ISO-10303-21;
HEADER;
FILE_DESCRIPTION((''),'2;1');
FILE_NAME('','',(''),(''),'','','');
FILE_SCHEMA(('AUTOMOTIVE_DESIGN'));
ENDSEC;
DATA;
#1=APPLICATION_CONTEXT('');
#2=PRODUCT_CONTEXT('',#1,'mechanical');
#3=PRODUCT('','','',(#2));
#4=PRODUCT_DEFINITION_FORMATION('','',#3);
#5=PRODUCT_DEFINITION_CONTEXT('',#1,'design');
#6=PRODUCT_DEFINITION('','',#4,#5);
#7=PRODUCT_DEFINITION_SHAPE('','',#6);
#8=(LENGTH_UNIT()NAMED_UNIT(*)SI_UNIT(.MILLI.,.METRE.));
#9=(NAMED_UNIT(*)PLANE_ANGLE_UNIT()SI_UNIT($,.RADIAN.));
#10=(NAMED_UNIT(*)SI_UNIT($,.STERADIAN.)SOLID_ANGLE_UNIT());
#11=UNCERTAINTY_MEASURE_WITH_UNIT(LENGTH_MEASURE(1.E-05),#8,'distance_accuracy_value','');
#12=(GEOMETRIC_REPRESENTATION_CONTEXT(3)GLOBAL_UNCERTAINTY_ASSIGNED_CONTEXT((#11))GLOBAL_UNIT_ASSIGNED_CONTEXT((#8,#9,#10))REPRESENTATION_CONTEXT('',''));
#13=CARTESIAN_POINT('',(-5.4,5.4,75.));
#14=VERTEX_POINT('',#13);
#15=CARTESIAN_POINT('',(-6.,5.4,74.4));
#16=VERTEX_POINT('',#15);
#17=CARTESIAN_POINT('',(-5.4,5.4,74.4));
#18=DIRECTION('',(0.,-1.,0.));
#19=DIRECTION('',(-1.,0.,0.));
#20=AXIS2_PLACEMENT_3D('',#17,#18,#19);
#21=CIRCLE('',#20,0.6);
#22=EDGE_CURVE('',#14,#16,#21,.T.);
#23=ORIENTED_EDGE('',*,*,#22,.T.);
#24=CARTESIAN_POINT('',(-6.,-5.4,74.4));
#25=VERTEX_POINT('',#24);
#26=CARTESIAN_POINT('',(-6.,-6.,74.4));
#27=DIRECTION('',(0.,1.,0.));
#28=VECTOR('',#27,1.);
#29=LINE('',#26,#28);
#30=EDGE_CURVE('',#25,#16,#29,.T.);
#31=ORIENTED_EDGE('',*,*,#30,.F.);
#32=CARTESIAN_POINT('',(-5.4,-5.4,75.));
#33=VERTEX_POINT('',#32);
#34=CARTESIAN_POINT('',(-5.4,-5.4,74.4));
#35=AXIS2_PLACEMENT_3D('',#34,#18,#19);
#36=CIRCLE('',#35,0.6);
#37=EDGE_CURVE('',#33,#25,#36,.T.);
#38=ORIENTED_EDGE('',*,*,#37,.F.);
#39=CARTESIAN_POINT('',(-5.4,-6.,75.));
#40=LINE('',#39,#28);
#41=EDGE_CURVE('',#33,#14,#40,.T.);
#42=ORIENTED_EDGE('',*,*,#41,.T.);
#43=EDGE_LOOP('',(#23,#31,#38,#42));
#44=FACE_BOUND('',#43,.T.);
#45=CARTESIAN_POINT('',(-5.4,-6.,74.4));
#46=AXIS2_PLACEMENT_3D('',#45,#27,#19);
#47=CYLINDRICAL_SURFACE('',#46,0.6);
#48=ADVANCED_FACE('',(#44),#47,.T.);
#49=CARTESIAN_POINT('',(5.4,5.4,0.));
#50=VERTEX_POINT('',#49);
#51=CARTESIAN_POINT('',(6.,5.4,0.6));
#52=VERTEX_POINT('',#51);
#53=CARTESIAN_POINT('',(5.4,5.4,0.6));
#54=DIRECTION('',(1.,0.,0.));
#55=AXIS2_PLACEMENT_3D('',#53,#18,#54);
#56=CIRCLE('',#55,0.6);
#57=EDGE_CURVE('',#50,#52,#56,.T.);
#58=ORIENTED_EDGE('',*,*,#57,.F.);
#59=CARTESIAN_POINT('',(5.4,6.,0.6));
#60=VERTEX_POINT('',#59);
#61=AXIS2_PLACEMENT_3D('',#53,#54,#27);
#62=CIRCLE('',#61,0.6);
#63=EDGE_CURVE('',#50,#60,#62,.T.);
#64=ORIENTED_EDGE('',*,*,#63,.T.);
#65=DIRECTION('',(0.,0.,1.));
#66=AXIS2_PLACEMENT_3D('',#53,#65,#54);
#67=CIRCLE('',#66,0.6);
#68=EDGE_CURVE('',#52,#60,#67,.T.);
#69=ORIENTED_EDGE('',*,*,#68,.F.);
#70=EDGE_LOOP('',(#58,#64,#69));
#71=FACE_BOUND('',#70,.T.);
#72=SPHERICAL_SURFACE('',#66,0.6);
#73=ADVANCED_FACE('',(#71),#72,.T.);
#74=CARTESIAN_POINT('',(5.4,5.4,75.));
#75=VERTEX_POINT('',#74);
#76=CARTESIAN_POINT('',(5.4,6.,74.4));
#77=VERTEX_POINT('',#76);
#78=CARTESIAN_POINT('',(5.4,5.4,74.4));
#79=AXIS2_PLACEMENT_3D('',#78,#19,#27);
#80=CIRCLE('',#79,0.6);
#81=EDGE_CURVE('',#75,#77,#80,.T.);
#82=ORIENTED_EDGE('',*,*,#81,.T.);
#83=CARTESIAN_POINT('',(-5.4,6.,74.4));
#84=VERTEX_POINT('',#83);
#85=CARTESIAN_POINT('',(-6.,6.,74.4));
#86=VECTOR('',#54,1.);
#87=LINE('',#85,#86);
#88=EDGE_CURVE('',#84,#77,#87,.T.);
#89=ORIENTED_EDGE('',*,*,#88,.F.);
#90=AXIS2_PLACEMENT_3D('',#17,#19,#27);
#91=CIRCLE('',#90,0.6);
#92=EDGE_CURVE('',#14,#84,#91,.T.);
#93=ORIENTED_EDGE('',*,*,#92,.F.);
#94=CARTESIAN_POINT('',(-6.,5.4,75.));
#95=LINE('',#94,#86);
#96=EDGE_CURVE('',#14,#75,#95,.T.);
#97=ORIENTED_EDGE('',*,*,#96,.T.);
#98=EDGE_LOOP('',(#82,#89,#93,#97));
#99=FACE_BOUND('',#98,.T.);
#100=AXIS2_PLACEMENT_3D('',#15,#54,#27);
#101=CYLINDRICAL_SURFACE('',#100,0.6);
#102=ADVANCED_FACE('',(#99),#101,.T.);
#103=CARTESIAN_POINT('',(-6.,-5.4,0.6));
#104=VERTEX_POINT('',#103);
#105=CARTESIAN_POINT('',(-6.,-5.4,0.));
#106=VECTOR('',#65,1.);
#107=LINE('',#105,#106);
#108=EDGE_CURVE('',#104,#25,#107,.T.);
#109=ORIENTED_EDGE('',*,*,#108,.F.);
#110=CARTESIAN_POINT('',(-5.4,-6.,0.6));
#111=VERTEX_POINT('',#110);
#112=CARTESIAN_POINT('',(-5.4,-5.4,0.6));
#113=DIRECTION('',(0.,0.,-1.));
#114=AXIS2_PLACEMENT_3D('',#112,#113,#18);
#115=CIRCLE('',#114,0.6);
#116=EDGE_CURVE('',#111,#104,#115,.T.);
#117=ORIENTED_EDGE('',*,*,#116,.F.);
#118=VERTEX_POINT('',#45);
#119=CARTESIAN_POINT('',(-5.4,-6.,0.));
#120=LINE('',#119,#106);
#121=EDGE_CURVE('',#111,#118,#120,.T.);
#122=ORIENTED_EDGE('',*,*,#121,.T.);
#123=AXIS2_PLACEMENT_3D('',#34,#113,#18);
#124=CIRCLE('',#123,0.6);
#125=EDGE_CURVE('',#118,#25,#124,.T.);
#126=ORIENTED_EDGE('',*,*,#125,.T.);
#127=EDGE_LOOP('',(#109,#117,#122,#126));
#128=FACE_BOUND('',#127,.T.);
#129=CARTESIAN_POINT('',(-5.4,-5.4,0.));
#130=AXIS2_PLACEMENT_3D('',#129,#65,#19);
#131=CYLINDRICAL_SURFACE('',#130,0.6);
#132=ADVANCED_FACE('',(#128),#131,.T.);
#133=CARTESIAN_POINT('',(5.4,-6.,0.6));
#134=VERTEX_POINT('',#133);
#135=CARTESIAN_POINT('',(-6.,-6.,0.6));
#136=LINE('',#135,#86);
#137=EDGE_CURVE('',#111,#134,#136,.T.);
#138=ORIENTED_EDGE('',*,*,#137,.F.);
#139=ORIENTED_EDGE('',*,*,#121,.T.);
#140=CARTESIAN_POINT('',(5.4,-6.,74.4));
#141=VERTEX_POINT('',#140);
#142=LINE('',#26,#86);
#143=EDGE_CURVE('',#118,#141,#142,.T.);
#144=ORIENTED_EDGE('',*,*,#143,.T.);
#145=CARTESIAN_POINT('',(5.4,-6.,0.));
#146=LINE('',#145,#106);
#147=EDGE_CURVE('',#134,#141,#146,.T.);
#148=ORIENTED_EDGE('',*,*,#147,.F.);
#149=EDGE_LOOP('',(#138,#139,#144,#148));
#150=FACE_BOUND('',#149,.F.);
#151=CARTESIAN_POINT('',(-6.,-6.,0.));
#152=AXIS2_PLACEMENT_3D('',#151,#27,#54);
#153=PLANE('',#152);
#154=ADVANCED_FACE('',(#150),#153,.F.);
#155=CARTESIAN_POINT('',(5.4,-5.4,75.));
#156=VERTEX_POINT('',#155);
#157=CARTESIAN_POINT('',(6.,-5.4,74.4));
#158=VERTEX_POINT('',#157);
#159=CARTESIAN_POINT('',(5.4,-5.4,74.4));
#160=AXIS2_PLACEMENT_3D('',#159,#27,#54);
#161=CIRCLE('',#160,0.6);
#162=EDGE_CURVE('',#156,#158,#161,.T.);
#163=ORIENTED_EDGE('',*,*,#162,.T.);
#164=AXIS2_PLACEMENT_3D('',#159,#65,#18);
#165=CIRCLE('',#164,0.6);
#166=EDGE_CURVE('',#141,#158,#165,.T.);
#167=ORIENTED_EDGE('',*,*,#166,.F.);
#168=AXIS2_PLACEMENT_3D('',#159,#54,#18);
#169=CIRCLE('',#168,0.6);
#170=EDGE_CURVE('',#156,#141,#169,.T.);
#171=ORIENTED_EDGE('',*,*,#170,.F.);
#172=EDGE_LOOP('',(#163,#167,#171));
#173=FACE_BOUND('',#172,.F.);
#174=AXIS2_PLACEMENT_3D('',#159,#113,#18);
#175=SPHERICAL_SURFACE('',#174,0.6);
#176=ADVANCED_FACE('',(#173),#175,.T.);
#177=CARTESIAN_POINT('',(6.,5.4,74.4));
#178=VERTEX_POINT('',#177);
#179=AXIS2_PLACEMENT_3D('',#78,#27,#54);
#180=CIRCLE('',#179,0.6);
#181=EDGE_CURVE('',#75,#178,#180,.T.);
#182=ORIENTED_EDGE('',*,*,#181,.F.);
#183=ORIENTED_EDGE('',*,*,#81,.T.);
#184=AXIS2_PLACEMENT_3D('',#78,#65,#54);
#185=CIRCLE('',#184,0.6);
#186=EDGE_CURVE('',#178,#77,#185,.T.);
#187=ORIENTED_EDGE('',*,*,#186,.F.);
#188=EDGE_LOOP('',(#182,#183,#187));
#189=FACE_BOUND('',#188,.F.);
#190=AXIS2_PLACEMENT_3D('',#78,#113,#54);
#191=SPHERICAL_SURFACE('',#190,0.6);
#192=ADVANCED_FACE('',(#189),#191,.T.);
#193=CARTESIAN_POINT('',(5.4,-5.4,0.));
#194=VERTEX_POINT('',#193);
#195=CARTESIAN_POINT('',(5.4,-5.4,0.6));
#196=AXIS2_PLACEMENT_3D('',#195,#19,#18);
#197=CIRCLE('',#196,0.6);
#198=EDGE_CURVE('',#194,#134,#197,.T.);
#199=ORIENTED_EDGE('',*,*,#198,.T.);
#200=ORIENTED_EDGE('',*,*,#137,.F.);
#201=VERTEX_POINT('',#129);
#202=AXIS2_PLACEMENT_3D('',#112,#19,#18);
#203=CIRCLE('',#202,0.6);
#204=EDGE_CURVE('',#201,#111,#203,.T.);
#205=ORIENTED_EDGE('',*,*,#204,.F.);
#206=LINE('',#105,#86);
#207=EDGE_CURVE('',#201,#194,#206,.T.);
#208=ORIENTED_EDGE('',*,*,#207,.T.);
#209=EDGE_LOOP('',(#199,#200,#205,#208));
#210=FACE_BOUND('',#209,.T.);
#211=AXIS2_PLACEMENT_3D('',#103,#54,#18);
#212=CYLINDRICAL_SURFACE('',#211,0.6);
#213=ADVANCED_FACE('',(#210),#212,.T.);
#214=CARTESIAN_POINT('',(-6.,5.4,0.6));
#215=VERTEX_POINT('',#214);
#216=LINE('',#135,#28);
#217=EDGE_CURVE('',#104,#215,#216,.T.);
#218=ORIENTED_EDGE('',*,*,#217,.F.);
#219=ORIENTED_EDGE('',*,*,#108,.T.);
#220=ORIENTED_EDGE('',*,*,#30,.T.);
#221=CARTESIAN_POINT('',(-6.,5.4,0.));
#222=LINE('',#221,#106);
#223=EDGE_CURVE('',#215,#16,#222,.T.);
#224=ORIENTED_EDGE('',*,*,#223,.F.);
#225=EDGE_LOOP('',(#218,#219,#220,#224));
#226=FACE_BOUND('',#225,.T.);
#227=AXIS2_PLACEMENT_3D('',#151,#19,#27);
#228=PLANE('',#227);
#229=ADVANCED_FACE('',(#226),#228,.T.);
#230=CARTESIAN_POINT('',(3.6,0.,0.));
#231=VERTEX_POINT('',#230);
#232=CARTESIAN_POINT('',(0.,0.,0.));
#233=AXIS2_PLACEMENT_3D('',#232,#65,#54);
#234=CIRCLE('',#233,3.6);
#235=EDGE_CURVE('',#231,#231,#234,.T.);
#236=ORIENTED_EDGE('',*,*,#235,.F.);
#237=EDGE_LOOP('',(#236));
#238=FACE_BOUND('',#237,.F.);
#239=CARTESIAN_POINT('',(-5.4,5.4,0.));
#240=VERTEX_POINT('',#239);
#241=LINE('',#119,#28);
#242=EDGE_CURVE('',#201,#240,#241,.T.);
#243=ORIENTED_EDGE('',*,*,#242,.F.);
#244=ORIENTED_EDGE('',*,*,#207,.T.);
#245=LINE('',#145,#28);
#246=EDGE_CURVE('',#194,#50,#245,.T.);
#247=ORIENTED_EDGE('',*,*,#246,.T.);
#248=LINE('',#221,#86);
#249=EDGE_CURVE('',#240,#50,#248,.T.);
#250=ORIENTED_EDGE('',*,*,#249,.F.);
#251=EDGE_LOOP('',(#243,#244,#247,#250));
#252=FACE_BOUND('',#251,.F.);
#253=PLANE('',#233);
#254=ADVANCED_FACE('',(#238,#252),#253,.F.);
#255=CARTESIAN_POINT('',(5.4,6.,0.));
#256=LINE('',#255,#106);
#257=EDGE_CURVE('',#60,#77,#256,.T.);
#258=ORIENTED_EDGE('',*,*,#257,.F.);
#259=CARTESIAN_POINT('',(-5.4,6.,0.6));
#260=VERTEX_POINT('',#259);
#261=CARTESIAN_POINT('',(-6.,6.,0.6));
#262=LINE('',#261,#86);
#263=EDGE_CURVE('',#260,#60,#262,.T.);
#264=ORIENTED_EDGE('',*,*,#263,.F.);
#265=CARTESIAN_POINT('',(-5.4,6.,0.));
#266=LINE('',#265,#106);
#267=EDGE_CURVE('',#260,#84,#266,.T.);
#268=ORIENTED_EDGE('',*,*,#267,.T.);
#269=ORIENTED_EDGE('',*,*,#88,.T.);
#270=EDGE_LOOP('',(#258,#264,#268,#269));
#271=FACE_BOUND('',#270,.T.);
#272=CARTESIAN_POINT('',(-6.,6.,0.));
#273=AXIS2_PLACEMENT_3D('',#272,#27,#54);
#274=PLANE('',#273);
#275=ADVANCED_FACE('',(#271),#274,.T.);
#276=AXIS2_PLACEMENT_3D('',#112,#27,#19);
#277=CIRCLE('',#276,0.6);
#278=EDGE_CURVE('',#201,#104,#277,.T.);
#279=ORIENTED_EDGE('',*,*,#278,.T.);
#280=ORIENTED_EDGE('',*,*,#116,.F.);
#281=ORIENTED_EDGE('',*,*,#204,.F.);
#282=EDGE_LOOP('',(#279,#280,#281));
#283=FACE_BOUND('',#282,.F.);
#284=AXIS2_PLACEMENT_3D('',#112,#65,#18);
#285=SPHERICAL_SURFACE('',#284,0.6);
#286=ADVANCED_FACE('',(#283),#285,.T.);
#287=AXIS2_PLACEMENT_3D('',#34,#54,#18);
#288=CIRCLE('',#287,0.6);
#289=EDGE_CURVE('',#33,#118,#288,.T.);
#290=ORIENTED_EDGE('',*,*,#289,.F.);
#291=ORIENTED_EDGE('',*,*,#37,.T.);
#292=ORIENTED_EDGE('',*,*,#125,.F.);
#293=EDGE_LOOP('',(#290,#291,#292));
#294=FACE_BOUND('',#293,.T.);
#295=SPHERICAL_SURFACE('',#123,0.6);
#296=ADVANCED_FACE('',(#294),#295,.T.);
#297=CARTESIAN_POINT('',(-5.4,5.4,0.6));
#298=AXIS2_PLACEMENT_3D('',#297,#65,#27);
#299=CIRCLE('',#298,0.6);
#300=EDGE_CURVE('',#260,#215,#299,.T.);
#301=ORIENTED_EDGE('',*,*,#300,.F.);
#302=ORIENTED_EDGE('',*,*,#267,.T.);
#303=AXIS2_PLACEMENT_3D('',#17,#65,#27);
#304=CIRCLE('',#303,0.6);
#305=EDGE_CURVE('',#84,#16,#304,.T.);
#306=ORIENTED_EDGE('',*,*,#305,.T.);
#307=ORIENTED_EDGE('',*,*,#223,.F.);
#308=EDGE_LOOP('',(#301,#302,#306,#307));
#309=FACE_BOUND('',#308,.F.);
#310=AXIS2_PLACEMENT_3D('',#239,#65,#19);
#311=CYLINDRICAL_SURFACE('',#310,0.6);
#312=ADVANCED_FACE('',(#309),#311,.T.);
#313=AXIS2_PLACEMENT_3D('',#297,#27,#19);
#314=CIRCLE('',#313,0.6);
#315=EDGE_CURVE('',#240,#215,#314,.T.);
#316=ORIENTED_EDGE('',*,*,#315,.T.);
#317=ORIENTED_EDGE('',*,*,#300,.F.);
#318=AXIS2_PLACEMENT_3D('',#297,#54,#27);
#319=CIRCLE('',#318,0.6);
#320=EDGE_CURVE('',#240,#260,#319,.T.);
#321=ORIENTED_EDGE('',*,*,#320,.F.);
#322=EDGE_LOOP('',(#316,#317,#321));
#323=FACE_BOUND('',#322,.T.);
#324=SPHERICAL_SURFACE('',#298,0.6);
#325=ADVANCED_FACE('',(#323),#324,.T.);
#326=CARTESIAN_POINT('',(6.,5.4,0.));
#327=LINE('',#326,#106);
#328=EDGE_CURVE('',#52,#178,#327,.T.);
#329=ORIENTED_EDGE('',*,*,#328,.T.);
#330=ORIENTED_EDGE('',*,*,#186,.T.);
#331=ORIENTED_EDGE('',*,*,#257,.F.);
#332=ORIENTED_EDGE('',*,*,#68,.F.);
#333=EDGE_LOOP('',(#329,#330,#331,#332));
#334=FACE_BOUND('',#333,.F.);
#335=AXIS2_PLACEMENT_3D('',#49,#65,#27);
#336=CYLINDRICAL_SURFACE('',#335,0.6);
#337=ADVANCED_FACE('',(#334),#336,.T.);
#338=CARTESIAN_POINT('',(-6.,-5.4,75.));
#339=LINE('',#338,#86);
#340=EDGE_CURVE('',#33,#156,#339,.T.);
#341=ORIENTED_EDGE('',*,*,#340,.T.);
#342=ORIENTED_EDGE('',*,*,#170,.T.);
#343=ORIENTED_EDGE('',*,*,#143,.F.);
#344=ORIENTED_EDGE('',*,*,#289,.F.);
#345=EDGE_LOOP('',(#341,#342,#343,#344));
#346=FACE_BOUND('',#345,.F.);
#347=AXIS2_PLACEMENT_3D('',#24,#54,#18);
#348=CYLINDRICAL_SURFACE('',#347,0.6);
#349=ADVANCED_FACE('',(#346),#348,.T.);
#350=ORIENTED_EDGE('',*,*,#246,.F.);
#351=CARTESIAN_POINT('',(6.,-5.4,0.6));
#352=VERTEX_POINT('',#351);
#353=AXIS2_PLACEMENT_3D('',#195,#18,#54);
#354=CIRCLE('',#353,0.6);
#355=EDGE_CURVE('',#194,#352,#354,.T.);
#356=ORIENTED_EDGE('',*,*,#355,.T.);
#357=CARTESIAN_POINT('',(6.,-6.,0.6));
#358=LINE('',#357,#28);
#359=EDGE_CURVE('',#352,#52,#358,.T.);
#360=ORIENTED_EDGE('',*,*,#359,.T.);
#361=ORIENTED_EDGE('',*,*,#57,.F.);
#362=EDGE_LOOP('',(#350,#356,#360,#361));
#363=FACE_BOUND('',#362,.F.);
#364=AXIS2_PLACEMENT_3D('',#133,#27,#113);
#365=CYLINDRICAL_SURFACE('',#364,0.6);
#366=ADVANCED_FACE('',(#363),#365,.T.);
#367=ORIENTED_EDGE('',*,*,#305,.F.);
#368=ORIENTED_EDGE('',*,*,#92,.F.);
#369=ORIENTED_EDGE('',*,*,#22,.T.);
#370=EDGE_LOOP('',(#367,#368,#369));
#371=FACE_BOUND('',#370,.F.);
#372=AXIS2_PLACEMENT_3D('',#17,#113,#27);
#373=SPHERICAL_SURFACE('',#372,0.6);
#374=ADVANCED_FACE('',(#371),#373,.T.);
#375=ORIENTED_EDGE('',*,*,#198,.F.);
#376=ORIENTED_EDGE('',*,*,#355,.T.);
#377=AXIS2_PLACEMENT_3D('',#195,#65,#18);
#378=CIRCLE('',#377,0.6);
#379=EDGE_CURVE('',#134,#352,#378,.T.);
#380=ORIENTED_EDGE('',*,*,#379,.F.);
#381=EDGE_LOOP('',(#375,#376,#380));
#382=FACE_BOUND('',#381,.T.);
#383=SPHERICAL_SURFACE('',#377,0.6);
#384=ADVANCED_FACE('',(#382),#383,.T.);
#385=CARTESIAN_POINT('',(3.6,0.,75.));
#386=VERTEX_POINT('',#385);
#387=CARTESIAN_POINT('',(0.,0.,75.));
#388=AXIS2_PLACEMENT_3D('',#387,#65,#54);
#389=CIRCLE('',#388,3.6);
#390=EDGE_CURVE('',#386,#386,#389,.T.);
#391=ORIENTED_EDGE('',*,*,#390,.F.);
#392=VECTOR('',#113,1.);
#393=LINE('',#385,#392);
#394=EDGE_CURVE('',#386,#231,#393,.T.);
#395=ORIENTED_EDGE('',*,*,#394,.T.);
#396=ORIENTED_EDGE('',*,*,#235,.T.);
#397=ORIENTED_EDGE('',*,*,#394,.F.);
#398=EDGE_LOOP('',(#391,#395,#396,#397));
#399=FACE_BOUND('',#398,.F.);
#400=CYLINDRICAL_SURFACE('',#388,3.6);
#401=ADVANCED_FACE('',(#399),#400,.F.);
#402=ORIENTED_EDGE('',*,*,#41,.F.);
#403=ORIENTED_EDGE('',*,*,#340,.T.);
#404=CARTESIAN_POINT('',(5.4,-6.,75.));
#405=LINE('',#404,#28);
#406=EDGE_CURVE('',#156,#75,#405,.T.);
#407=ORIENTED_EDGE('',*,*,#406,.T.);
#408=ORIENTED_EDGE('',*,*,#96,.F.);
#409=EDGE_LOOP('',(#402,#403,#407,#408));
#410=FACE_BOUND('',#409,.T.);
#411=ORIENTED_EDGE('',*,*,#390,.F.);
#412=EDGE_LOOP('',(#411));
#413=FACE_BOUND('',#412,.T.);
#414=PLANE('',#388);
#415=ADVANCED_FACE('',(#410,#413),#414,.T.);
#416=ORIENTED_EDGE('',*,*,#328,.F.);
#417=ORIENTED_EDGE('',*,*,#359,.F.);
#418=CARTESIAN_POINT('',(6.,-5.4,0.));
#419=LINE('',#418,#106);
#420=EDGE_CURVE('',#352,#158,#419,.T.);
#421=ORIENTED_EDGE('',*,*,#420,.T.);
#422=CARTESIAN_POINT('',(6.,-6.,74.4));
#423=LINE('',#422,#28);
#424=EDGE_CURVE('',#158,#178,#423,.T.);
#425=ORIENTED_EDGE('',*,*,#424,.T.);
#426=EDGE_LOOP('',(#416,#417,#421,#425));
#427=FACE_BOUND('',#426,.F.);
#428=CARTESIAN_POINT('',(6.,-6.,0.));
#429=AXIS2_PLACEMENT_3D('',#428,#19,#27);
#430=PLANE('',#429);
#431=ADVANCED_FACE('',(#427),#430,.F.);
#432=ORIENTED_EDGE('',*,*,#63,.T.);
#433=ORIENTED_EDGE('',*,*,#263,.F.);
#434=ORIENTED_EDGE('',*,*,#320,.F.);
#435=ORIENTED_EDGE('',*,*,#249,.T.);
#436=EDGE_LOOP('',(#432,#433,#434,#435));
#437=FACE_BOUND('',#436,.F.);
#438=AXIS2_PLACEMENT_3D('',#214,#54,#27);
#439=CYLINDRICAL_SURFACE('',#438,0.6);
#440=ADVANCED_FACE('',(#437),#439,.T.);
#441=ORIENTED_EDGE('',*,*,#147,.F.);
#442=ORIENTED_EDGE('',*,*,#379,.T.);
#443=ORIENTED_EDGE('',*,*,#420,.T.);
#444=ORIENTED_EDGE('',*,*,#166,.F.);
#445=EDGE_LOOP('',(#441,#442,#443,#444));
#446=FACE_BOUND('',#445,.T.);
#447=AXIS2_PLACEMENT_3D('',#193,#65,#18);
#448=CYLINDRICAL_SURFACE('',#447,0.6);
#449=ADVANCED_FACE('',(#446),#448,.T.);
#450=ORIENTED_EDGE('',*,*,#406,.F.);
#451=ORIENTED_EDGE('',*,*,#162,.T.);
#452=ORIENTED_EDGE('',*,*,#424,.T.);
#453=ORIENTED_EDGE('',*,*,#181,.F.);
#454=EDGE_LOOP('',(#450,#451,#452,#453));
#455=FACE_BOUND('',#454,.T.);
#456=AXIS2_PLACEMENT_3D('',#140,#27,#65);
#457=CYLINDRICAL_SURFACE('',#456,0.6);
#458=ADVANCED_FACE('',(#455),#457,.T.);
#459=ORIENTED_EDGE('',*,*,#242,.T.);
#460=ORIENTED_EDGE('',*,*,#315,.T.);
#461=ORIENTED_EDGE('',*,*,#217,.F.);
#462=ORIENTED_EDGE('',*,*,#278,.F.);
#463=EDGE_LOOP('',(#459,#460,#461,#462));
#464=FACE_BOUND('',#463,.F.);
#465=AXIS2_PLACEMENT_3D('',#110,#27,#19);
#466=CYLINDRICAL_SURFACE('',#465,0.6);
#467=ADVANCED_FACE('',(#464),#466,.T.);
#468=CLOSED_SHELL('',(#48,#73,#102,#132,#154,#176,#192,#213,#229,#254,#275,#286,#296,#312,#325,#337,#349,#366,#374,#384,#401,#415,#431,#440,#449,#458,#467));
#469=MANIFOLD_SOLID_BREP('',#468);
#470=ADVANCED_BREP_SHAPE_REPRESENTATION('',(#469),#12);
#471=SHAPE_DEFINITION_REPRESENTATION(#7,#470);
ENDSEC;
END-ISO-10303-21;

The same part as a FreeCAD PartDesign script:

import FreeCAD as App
import Part
import Sketcher

V = App.Vector


def edges_at(feature, points):
    """Names of the edges that pass closest to the given points."""
    edges = feature.Shape.Edges
    near = lambda p: min(range(len(edges)), key=lambda i: edges[i].distToShape(Part.Vertex(*p))[0])
    return sorted({f"Edge{near(p) + 1}" for p in points})


def add_polygon(sketch, points):
    """Adds a closed chain of lines whose ends are joined by coincident constraints."""
    first, n = sketch.GeometryCount, len(points)
    for a, b in zip(points, points[1:] + points[:1]):
        sketch.addGeometry(Part.LineSegment(App.Vector(*a, 0), App.Vector(*b, 0)), False)
    for i in range(n):
        sketch.addConstraint(Sketcher.Constraint("Coincident", first + i, 2, first + (i + 1) % n, 1))

doc = App.newDocument("Part")
params = doc.addObject("Spreadsheet::Sheet", "Params")
for row, (alias, value) in enumerate([
    ("sketch1_width", "12 mm"),
    ("pad1_length", "75 mm"),
    ("sketch2_diameter", "7.2 mm"),
    ("pocket1_length", "80 mm"),
    ("fillet_radius", "0.6 mm"),
], start=1):
    params.set(f"A{row}", alias)
    params.set(f"B{row}", "=" + value)
    params.setAlias(f"B{row}", alias)

body = doc.addObject("PartDesign::Body", "Body")

sketch1 = body.newObject("Sketcher::SketchObject", "Sketch")
sketch1.AttachmentSupport = (doc.getObject("XY_Plane"), [""])
sketch1.MapMode = "FlatFace"
add_polygon(sketch1, [(-6, 6), (-6, -6), (6, -6), (6, 6)])
sketch1.addConstraint([
    Sketcher.Constraint("Vertical", 0),
    Sketcher.Constraint("Horizontal", 1),
    Sketcher.Constraint("Vertical", 2),
    Sketcher.Constraint("Horizontal", 3),
    Sketcher.Constraint("Symmetric", 0, 2, 2, 2, -1, 1),
    Sketcher.Constraint("Equal", 3, 0),
    Sketcher.Constraint("DistanceX", 1, 1, 1, 2, 12.0),
])
sketch1.setExpression("Constraints[10]", "Params.sketch1_width")
pad1 = body.newObject("PartDesign::Pad", "Pad")
pad1.Profile = sketch1
pad1.setExpression("Length", "Params.pad1_length")

sketch2 = body.newObject("Sketcher::SketchObject", "Sketch001")
sketch2.AttachmentSupport = (doc.getObject("XY_Plane"), [""])
sketch2.MapMode = "FlatFace"
sketch2.AttachmentOffset = App.Placement(V(0, 0, 75), App.Rotation())
sketch2.addGeometry(Part.Circle(V(0, 0, 0), V(0, 0, 1), 3.6), False)
sketch2.addConstraint([
    Sketcher.Constraint("Coincident", 0, 3, -1, 1),
    Sketcher.Constraint("Diameter", 0, 7.2),
])
sketch2.setExpression("Constraints[1]", "Params.sketch2_diameter")
pocket1 = body.newObject("PartDesign::Pocket", "Pocket")
pocket1.Profile = sketch2
pocket1.setExpression("Length", "Params.pocket1_length")
doc.recompute()

fillet = body.newObject("PartDesign::Fillet", "Fillet")
fillet.Base = (pocket1, edges_at(pocket1, [
    (-6, -6, 37.5),
    (6, -6, 37.5),
    (0, -6, 0),
    (0, -6, 75),
    (6, 6, 37.5),
    (6, 0, 0),
    (6, 0, 75),
    (-6, 6, 37.5),
    (0, 6, 0),
    (0, 6, 75),
    (-6, 0, 0),
    (-6, 0, 75),
]))
fillet.setExpression("Radius", "Params.fillet_radius")

doc.recompute()
